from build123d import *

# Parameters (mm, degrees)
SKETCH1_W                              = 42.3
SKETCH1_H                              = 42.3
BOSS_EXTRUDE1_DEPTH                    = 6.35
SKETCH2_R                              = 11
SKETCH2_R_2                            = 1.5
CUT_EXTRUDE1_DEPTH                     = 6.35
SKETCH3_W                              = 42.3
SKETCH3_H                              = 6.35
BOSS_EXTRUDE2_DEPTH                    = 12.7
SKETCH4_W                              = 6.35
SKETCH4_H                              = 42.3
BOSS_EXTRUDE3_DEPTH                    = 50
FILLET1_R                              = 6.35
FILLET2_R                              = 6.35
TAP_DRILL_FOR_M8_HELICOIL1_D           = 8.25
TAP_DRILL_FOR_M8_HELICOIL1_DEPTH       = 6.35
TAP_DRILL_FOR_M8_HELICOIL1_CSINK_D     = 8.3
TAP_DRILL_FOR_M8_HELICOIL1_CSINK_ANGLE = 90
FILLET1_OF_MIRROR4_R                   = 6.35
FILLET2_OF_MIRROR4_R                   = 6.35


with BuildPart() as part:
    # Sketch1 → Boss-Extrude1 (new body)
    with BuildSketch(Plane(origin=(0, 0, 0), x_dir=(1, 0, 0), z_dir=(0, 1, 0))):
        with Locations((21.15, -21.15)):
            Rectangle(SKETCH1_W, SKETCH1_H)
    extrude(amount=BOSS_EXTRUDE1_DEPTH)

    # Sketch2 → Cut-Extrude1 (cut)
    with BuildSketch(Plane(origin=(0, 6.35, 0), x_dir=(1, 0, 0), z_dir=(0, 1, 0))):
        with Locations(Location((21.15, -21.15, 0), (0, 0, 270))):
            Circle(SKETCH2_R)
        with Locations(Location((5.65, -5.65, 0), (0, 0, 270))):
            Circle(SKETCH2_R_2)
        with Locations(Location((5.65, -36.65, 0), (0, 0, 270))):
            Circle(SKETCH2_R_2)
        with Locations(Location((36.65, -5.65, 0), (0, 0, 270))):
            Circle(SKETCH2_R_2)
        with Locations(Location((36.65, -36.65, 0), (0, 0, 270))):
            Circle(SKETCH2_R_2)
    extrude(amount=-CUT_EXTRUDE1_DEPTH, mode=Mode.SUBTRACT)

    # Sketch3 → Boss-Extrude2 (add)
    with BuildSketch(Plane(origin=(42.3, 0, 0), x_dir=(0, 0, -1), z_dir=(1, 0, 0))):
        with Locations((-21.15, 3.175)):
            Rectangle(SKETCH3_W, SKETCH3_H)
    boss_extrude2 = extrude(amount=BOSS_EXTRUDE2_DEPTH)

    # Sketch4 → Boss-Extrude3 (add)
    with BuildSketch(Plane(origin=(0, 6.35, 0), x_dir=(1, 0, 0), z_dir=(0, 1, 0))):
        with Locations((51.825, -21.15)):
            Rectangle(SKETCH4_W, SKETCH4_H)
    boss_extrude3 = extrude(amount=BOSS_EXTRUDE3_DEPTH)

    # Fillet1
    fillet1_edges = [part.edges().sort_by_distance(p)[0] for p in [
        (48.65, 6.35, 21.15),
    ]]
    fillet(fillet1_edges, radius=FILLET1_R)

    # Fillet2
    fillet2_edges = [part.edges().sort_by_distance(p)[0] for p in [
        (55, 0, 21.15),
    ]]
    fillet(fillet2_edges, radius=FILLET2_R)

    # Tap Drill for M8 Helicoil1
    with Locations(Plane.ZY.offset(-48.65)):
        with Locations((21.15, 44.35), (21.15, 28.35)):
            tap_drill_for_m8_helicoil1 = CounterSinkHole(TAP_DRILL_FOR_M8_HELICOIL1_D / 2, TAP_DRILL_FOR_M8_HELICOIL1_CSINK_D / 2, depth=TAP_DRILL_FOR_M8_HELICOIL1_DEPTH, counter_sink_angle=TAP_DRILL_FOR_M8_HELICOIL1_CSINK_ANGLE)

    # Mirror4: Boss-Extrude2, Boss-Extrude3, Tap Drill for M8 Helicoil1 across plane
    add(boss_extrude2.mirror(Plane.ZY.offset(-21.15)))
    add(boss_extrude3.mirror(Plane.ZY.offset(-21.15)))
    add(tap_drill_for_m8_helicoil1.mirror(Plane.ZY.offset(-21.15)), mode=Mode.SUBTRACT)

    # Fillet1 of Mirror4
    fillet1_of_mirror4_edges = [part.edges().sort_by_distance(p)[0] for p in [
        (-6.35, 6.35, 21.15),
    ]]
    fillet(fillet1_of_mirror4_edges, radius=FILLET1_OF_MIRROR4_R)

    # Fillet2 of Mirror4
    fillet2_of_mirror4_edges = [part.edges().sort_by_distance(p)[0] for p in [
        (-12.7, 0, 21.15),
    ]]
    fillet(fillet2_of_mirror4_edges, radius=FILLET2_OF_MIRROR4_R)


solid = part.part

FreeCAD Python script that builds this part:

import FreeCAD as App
import Part
import Sketcher
from FreeCAD import Vector
Q = App.Units.Quantity


def edges_at(feature, points):
    """Names of the edges that pass closest to the given points."""
    edges = feature.Shape.Edges
    near = lambda p: min(range(len(edges)), key=lambda i: edges[i].distToShape(Part.Vertex(*p))[0])
    return sorted({f"Edge{near(p) + 1}" for p in points})


def add_polygon(sketch, points):
    """Adds a closed chain of lines whose ends are joined by coincident constraints."""
    first, n = sketch.GeometryCount, len(points)
    for a, b in zip(points, points[1:] + points[:1]):
        sketch.addGeometry(Part.LineSegment(App.Vector(*a, 0), App.Vector(*b, 0)), False)
    for i in range(n):
        sketch.addConstraint(Sketcher.Constraint("Coincident", first + i, 2, first + (i + 1) % n, 1))

doc = App.newDocument("Part")
body = doc.addObject("PartDesign::Body", "Body")

sketch1 = doc.addObject("Sketcher::SketchObject", "Sketch")
body.addObject(sketch1)
sketch1.AttachmentSupport = (doc.XZ_Plane, [""])
sketch1.MapMode = "FlatFace"
add_polygon(sketch1, [(0, 0), (0, 42.3), (42.3, 42.3), (42.3, 0)])
sketch1.addConstraint([
    Sketcher.Constraint("Vertical", 0),
    Sketcher.Constraint("Horizontal", 1),
    Sketcher.Constraint("Vertical", 2),
    Sketcher.Constraint("Horizontal", 3),
    Sketcher.Constraint("Coincident", 3, 2, -1, 1),
    Sketcher.Constraint("Equal", 3, 0),
    Sketcher.Constraint("DistanceX", 1, 1, 1, 2, Q("42.3 mm")),
])
pad1 = doc.addObject("PartDesign::Pad", "Pad")
body.addObject(pad1)
pad1.Profile = sketch1
pad1.Length = 6.35
pad1.Reversed = True

sketch2 = doc.addObject("Sketcher::SketchObject", "Sketch001")
body.addObject(sketch2)
sketch2.AttachmentSupport = (doc.XZ_Plane, [""])
sketch2.MapMode = "FlatFace"
sketch2.AttachmentOffset = App.Placement(Vector(0, 0, -6.35), App.Rotation())
sketch2.addGeometry([
    Part.Circle(Vector(21.15, 21.15, 0), Vector(0, 0, 1), 11),
    Part.Circle(Vector(5.65, 5.65, 0), Vector(0, 0, 1), 1.5),
    Part.Circle(Vector(5.65, 36.65, 0), Vector(0, 0, 1), 1.5),
    Part.Circle(Vector(36.65, 5.65, 0), Vector(0, 0, 1), 1.5),
    Part.Circle(Vector(36.65, 36.65, 0), Vector(0, 0, 1), 1.5),
], False)
sketch2.addConstraint([
    Sketcher.Constraint("Equal", 1, 2),
    Sketcher.Constraint("Equal", 2, 3),
    Sketcher.Constraint("Equal", 3, 4),
    Sketcher.Constraint("Horizontal", 1, 3, 3, 3),
    Sketcher.Constraint("Horizontal", 2, 3, 4, 3),
    Sketcher.Constraint("Vertical", 1, 3, 2, 3),
    Sketcher.Constraint("Vertical", 3, 3, 4, 3),
    Sketcher.Constraint("Diameter", 0, Q("22 mm")),
    Sketcher.Constraint("Diameter", 1, Q("3 mm")),
    Sketcher.Constraint("DistanceY", 1, 3, 2, 3, Q("31 mm")),
    Sketcher.Constraint("DistanceX", 1, 3, 3, 3, Q("31 mm")),
    Sketcher.Constraint("DistanceX", 1, 3, 0, 3, Q("15.5 mm")),
    Sketcher.Constraint("DistanceY", 1, 3, 0, 3, Q("15.5 mm")),
    Sketcher.Constraint("DistanceX", -1, 1, 0, 3, Q("21.15 mm")),
    Sketcher.Constraint("DistanceY", -1, 1, 0, 3, Q("21.15 mm")),
])
pocket1 = doc.addObject("PartDesign::Pocket", "Pocket")
body.addObject(pocket1)
pocket1.Profile = sketch2
pocket1.Length = 6.35
pocket1.Reversed = True

sketch3 = doc.addObject("Sketcher::SketchObject", "Sketch002")
body.addObject(sketch3)
sketch3.AttachmentSupport = (doc.YZ_Plane, [""])
sketch3.MapMode = "FlatFace"
sketch3.AttachmentOffset = App.Placement(Vector(0, 0, 42.3), App.Rotation())
add_polygon(sketch3, [(6.35, 42.3), (0, 42.3), (0, 0), (6.35, 0)])
sketch3.addConstraint([
    Sketcher.Constraint("Horizontal", 0),
    Sketcher.Constraint("Vertical", 1),
    Sketcher.Constraint("Horizontal", 2),
    Sketcher.Constraint("Vertical", 3),
    Sketcher.Constraint("Coincident", 1, 2, -1, 1),
    Sketcher.Constraint("DistanceY", 1, 2, 1, 1, Q("42.3 mm")),
    Sketcher.Constraint("DistanceX", 0, 2, 0, 1, Q("6.35 mm")),
])
pad2 = doc.addObject("PartDesign::Pad", "Pad001")
body.addObject(pad2)
pad2.Profile = sketch3
pad2.Length = 12.7

sketch4 = doc.addObject("Sketcher::SketchObject", "Sketch003")
body.addObject(sketch4)
sketch4.AttachmentSupport = (doc.XZ_Plane, [""])
sketch4.MapMode = "FlatFace"
sketch4.AttachmentOffset = App.Placement(Vector(0, 0, -6.35), App.Rotation())
add_polygon(sketch4, [(48.65, 0), (48.65, 42.3), (55, 42.3), (55, 0)])
sketch4.addConstraint([
    Sketcher.Constraint("Vertical", 0),
    Sketcher.Constraint("Horizontal", 1),
    Sketcher.Constraint("Vertical", 2),
    Sketcher.Constraint("Horizontal", 3),
    Sketcher.Constraint("PointOnObject", 2, 2, -1),
    Sketcher.Constraint("DistanceY", 0, 1, 0, 2, Q("42.3 mm")),
    Sketcher.Constraint("DistanceX", -1, 1, 1, 2, Q("55 mm")),
    Sketcher.Constraint("DistanceX", 1, 1, 1, 2, Q("6.35 mm")),
])
pad3 = doc.addObject("PartDesign::Pad", "Pad002")
body.addObject(pad3)
pad3.Profile = sketch4
pad3.Length = 50
pad3.Reversed = True
doc.recompute()

fillet = doc.addObject("PartDesign::Fillet", "Fillet")
body.addObject(fillet)
fillet.Base = (pad3, edges_at(pad3, [(48.65, 6.35, 21.15)]))
fillet.Radius = 6.35
doc.recompute()

fillet2 = doc.addObject("PartDesign::Fillet", "Fillet001")
body.addObject(fillet2)
fillet2.Base = (fillet, edges_at(fillet, [(55, 0, 21.15)]))
fillet2.Radius = 6.35

sketch5 = doc.addObject("Sketcher::SketchObject", "Sketch004")
body.addObject(sketch5)
sketch5.AttachmentSupport = (doc.YZ_Plane, [""])
sketch5.MapMode = "FlatFace"
sketch5.AttachmentOffset = App.Placement(Vector(0, 0, 48.65), App.Rotation())
sketch5.addGeometry([
    Part.Circle(Vector(44.35, 21.15, 0), Vector(0, 0, 1), 4.125),
    Part.Circle(Vector(28.35, 21.15, 0), Vector(0, 0, 1), 4.125),
], False)
sketch5.addConstraint([
    Sketcher.Constraint("Equal", 0, 1),
    Sketcher.Constraint("Horizontal", 0, 3, 1, 3),
    Sketcher.Constraint("Diameter", 0, Q("8.25 mm")),
    Sketcher.Constraint("DistanceX", 1, 3, 0, 3, Q("16 mm")),
    Sketcher.Constraint("DistanceX", -1, 1, 0, 3, Q("44.35 mm")),
    Sketcher.Constraint("DistanceY", -1, 1, 0, 3, Q("21.15 mm")),
])
doc.recompute()
hole = doc.addObject("PartDesign::Hole", "Hole")
body.addObject(hole)
hole.Profile = sketch5
hole.ThreadType = "None"
hole.Diameter = 8.25
hole.DepthType = "Dimension"
hole.Depth = 6.35
hole.DrillPoint = "Flat"
hole.HoleCutType = "Countersink"
hole.HoleCutDiameter = 8.3
hole.HoleCutCountersinkAngle = 90
hole.Reversed = True
doc.recompute()

datumplane = doc.addObject("PartDesign::Plane", "DatumPlane")
body.addObject(datumplane)
datumplane.AttachmentSupport = (doc.YZ_Plane, [""])
datumplane.MapMode = "FlatFace"
datumplane.AttachmentOffset = App.Placement(Vector(0, 0, 21.15), App.Rotation())
mirrored = doc.addObject("PartDesign::Mirrored", "Mirrored")
body.addObject(mirrored)
mirrored.Originals = [pad2, pad3, hole]
mirrored.MirrorPlane = (datumplane, [""])
body.Tip = mirrored
doc.recompute()

fillet3 = doc.addObject("PartDesign::Fillet", "Fillet002")
body.addObject(fillet3)
fillet3.Base = (mirrored, edges_at(mirrored, [(-6.35, 6.35, 21.15)]))
fillet3.Radius = 6.35
doc.recompute()

fillet4 = doc.addObject("PartDesign::Fillet", "Fillet003")
body.addObject(fillet4)
fillet4.Base = (fillet3, edges_at(fillet3, [(-12.7, 0, 21.15)]))
fillet4.Radius = 6.35

doc.recompute()
